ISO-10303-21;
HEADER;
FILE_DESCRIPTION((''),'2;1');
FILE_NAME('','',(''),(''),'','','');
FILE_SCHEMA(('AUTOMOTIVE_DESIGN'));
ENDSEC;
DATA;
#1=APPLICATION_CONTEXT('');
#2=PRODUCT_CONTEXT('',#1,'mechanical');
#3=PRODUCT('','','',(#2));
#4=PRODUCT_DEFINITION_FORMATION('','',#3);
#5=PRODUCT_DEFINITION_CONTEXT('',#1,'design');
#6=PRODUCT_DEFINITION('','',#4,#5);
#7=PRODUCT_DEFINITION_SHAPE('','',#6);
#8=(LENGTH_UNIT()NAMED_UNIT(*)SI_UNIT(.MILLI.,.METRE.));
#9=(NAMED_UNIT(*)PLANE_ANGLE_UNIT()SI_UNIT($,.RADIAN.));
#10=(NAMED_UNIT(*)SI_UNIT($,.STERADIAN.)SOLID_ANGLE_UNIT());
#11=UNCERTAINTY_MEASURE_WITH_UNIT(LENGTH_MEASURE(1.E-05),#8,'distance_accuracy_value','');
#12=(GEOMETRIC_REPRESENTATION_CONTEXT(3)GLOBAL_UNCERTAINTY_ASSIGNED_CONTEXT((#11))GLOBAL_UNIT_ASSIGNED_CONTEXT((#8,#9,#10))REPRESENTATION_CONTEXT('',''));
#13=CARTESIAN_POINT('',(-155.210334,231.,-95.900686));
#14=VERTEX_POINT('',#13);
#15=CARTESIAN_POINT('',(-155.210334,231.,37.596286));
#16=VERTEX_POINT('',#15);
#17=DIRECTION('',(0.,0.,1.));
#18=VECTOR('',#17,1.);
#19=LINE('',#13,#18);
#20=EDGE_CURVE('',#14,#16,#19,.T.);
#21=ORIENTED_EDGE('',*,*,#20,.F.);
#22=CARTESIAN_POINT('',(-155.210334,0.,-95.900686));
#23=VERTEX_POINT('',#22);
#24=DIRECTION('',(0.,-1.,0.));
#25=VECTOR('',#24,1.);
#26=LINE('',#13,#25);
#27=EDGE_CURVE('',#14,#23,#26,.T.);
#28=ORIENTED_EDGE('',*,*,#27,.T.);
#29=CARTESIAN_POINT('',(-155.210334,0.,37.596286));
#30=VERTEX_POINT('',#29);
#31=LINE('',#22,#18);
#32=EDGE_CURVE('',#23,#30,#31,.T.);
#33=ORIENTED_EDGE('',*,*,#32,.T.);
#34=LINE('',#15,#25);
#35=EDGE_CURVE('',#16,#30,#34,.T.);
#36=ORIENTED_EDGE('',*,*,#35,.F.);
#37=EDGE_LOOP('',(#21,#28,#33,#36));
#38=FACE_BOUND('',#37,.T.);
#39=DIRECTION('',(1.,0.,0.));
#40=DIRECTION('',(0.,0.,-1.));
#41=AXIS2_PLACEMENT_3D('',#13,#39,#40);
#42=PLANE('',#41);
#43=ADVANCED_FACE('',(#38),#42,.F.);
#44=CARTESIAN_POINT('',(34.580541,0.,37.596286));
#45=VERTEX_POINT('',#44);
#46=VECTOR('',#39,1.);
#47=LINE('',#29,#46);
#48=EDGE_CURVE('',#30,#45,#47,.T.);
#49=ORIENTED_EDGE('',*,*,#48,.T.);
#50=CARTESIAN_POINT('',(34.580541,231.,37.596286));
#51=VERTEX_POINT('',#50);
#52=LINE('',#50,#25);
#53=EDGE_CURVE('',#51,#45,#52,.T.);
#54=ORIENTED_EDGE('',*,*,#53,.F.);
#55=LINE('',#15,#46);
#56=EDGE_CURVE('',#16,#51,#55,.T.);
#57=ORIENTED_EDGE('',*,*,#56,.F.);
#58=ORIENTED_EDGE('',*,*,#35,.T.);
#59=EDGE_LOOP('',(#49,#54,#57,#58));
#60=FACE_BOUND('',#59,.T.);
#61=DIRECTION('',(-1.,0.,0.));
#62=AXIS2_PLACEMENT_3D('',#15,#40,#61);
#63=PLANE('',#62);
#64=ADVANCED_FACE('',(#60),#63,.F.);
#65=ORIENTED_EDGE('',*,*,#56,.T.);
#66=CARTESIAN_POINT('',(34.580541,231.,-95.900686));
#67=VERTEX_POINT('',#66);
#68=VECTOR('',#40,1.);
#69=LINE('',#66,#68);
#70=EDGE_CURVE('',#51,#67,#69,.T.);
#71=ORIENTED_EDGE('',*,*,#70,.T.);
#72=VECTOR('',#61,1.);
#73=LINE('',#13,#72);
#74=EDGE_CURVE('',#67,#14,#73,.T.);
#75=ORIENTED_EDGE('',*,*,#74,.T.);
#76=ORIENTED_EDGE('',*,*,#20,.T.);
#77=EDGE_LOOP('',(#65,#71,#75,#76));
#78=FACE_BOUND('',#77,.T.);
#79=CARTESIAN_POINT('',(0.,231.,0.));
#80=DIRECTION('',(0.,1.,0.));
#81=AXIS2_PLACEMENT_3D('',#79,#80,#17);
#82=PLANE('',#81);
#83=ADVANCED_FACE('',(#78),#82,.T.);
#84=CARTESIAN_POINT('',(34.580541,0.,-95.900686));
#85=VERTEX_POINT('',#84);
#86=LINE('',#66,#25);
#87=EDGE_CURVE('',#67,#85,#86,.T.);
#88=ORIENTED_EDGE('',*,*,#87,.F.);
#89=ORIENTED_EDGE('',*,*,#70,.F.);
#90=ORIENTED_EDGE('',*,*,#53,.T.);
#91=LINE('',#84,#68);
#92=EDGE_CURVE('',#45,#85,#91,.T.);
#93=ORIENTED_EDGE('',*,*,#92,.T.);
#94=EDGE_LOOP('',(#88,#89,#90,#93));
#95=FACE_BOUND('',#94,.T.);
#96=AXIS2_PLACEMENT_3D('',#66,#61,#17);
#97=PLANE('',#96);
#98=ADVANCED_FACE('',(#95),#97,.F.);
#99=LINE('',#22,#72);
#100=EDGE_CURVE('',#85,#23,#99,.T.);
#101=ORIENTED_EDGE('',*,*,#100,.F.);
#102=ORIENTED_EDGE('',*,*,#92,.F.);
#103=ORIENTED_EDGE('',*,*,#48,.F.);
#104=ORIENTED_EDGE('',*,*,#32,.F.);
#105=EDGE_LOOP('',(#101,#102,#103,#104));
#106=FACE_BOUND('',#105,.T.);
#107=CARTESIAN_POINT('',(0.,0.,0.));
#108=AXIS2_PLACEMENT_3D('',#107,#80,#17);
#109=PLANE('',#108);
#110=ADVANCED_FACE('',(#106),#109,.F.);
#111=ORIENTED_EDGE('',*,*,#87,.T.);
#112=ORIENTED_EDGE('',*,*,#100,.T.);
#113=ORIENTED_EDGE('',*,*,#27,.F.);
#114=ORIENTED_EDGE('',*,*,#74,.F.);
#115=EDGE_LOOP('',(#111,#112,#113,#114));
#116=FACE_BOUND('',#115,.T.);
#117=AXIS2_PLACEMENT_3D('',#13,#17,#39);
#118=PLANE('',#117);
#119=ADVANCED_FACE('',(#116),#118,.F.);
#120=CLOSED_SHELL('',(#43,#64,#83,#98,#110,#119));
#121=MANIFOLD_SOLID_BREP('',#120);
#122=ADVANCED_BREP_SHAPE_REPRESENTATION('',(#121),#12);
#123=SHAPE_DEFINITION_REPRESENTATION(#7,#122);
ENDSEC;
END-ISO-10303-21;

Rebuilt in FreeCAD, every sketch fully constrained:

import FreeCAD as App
import Part
import Sketcher

V = App.Vector
Q = App.Units.Quantity


def add_polygon(sketch, points):
    """Adds a closed chain of lines whose ends are joined by coincident constraints."""
    first, n = sketch.GeometryCount, len(points)
    for a, b in zip(points, points[1:] + points[:1]):
        sketch.addGeometry(Part.LineSegment(App.Vector(*a, 0), App.Vector(*b, 0)), False)
    for i in range(n):
        sketch.addConstraint(Sketcher.Constraint("Coincident", first + i, 2, first + (i + 1) % n, 1))

doc = App.newDocument("Part")
body = doc.addObject("PartDesign::Body", "Body")

# Sketch on XZ plane
sketch1 = doc.addObject("Sketcher::SketchObject", "Sketch")
body.addObject(sketch1)
sketch1.AttachmentSupport = (doc.XZ_Plane, [""])
sketch1.MapMode = "FlatFace"
add_polygon(sketch1, [(-155, -96), (-155, 38), (35, 38), (35, -96)])  # lines 0-3
sketch1.addConstraint([
    Sketcher.Constraint("Vertical", 0),
    Sketcher.Constraint("Horizontal", 1),
    Sketcher.Constraint("Vertical", 2),
    Sketcher.Constraint("Horizontal", 3),
    Sketcher.Constraint("DistanceY", 0, 1, 0, 2, Q("133.496971 mm")),
    Sketcher.Constraint("DistanceX", 1, 1, 1, 2, Q("189.790875 mm")),
    Sketcher.Constraint("DistanceX", -1, 1, 1, 2, Q("34.580541 mm")),
    Sketcher.Constraint("DistanceY", -1, 1, 0, 2, Q("37.596286 mm")),
])
pad1 = doc.addObject("PartDesign::Pad", "Pad")
body.addObject(pad1)
pad1.Profile = sketch1
pad1.Length = 231
pad1.Reversed = True

doc.recompute()
